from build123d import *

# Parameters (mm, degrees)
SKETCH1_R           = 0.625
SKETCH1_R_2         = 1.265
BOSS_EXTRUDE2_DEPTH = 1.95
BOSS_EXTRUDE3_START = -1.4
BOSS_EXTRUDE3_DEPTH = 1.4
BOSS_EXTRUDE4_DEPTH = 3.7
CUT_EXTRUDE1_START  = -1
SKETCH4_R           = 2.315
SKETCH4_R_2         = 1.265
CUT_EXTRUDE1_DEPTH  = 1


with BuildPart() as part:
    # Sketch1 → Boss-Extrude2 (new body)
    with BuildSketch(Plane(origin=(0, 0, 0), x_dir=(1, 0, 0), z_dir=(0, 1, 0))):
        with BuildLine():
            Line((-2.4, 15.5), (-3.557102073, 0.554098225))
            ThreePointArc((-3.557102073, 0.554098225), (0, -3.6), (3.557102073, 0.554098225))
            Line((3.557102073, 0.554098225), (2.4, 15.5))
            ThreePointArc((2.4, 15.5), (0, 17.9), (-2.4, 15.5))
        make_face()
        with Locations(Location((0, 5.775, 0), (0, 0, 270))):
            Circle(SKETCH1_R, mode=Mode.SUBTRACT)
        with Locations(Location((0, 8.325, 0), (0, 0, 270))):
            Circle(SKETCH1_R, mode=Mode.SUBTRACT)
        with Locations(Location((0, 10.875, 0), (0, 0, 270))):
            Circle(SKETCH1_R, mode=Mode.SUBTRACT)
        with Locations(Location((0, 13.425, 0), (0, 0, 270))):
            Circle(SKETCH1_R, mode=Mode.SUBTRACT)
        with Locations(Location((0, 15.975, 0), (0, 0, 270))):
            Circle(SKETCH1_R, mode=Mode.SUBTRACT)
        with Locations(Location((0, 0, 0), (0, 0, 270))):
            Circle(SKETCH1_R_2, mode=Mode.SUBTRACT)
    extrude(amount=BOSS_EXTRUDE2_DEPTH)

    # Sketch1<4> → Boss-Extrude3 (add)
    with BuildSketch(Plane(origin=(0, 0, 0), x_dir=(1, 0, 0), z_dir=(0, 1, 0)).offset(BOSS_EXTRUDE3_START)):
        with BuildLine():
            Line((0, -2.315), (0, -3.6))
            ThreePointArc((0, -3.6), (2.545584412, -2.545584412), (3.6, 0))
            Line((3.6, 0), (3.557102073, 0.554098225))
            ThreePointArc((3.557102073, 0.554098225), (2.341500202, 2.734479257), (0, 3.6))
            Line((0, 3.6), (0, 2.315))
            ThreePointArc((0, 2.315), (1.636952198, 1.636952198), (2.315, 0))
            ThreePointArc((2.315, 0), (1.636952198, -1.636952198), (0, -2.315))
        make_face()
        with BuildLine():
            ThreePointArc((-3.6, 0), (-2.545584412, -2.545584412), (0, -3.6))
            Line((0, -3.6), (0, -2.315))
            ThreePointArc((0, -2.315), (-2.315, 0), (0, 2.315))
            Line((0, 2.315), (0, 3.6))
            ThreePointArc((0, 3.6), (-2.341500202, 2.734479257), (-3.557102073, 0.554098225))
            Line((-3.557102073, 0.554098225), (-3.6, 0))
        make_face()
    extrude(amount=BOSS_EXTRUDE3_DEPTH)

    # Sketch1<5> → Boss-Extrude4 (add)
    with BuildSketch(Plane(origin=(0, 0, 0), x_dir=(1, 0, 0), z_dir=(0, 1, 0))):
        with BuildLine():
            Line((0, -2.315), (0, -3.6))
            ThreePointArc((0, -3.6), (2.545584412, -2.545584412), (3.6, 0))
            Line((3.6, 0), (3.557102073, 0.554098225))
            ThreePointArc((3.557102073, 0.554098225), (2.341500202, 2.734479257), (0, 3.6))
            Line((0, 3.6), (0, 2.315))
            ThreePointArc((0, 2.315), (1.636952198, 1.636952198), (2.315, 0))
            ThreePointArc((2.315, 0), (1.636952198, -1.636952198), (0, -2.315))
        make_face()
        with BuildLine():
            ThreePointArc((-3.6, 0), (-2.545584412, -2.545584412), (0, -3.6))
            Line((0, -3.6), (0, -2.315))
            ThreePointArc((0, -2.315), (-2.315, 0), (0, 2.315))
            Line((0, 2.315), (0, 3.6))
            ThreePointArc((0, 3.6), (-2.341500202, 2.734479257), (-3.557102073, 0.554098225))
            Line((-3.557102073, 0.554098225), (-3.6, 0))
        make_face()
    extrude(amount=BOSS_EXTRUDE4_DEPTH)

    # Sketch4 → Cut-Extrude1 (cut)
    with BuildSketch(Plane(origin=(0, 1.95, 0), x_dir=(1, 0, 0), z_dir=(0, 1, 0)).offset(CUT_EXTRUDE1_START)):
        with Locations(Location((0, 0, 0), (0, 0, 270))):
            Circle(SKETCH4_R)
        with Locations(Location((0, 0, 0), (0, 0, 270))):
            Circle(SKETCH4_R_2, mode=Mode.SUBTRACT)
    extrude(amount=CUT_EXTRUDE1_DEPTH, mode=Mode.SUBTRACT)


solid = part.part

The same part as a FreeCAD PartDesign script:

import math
import FreeCAD as App
import Part
import Sketcher

V = App.Vector

doc = App.newDocument("Part")
body = doc.addObject("PartDesign::Body", "Body")

sketch1 = doc.addObject("Sketcher::SketchObject", "Sketch")
body.addObject(sketch1)
sketch1.AttachmentSupport = (doc.XZ_Plane, [""])
sketch1.MapMode = "FlatFace"
sketch1.addGeometry(Part.LineSegment(V(-2.4, -15.5, 0), V(-3.6, -0.6, 0)), False)
sketch1.addGeometry(Part.ArcOfCircle(Part.Circle(V(0, 0, 0), V(0, 0, 1), 3.6), math.radians(-9), math.radians(189)), False)
sketch1.addGeometry(Part.LineSegment(V(3.6, -0.6, 0), V(2.4, -15.5, 0)), False)
sketch1.addGeometry(Part.ArcOfCircle(Part.Circle(V(0, -15.5, 0), V(0, 0, 1), 2.4), math.radians(180), math.radians(360)), False)
sketch1.addGeometry(Part.Circle(V(0, 0, 0), V(0, 0, 1), 1.3), False)
sketch1.addGeometry(Part.Circle(V(0, -5.8, 0), V(0, 0, 1), 0.6), False)
sketch1.addGeometry(Part.Circle(V(0, -8.3, 0), V(0, 0, 1), 0.6), False)
sketch1.addGeometry(Part.Circle(V(0, -10.9, 0), V(0, 0, 1), 0.6), False)
sketch1.addGeometry(Part.Circle(V(0, -13.4, 0), V(0, 0, 1), 0.6), False)
sketch1.addGeometry(Part.Circle(V(0, -16, 0), V(0, 0, 1), 0.6), False)
sketch1.addConstraint(Sketcher.Constraint("Coincident", 0, 2, 1, 2))
sketch1.addConstraint(Sketcher.Constraint("Coincident", 1, 1, 2, 1))
sketch1.addConstraint(Sketcher.Constraint("Coincident", 2, 2, 3, 2))
sketch1.addConstraint(Sketcher.Constraint("Coincident", 3, 1, 0, 1))
sketch1.addConstraint(Sketcher.Constraint("Coincident", 1, 3, -1, 1))
sketch1.addConstraint(Sketcher.Constraint("Coincident", 4, 3, -1, 1))
sketch1.addConstraint(Sketcher.Constraint("Equal", 5, 6))
sketch1.addConstraint(Sketcher.Constraint("Equal", 6, 7))
sketch1.addConstraint(Sketcher.Constraint("Equal", 7, 8))
sketch1.addConstraint(Sketcher.Constraint("Equal", 8, 9))
sketch1.addConstraint(Sketcher.Constraint("Symmetric", 2, 2, 3, 1, -2))
sketch1.addConstraint(Sketcher.Constraint("PointOnObject", 5, 3, -2))
sketch1.addConstraint(Sketcher.Constraint("PointOnObject", 6, 3, -2))
sketch1.addConstraint(Sketcher.Constraint("PointOnObject", 7, 3, -2))
sketch1.addConstraint(Sketcher.Constraint("PointOnObject", 8, 3, -2))
sketch1.addConstraint(Sketcher.Constraint("PointOnObject", 9, 3, -2))
sketch1.addConstraint(Sketcher.Constraint("Horizontal", 0, 2, 1, 1))
sketch1.addConstraint(Sketcher.Constraint("Horizontal", 3, 3, 2, 2))
sketch1.addConstraint(Sketcher.Constraint("Radius", 1, 3.6))
sketch1.addConstraint(Sketcher.Constraint("Radius", 3, 2.4))
sketch1.addConstraint(Sketcher.Constraint("Diameter", 4, 2.53))
sketch1.addConstraint(Sketcher.Constraint("Diameter", 5, 1.25))
sketch1.addConstraint(Sketcher.Constraint("DistanceY", 3, 3, -1, 1, 15.5))
sketch1.addConstraint(Sketcher.Constraint("DistanceY", 7, 3, 5, 3, 5.1))
sketch1.addConstraint(Sketcher.Constraint("DistanceY", 8, 3, 6, 3, 5.1))
sketch1.addConstraint(Sketcher.Constraint("DistanceY", 9, 3, 7, 3, 5.1))
sketch1.addConstraint(Sketcher.Constraint("DistanceY", 6, 3, 5, 3, 2.55))
sketch1.addConstraint(Sketcher.Constraint("DistanceY", 5, 3, -1, 1, 5.775))
sketch1.addConstraint(Sketcher.Constraint("DistanceY", 0, 2, -1, 1, 0.554098))
pad1 = doc.addObject("PartDesign::Pad", "Pad")
body.addObject(pad1)
pad1.Profile = sketch1
pad1.Length = 1.95
pad1.Reversed = True

sketch2 = doc.addObject("Sketcher::SketchObject", "Sketch001")
body.addObject(sketch2)
sketch2.AttachmentSupport = (doc.XZ_Plane, [""])
sketch2.MapMode = "FlatFace"
sketch2.AttachmentOffset = App.Placement(V(0, 0, 1.4), App.Rotation())
sketch2.addGeometry(Part.ArcOfCircle(Part.Circle(V(0, 0, 0), V(0, 0, 1), 3.6), math.radians(0), math.radians(90)), False)
sketch2.addGeometry(Part.LineSegment(V(3.6, 0, 0), V(3.6, -0.6, 0)), False)
sketch2.addGeometry(Part.ArcOfCircle(Part.Circle(V(0, 0, 0), V(0, 0, 1), 3.6), math.radians(-90), math.radians(-9)), False)
sketch2.addGeometry(Part.ArcOfCircle(Part.Circle(V(0, 0, 0), V(0, 0, 1), 3.6), math.radians(-171), math.radians(-90)), False)
sketch2.addGeometry(Part.LineSegment(V(-3.6, -0.6, 0), V(-3.6, 0, 0)), False)
sketch2.addGeometry(Part.ArcOfCircle(Part.Circle(V(0, 0, 0), V(0, 0, 1), 3.6), math.radians(90), math.radians(180)), False)
sketch2.addGeometry(Part.ArcOfCircle(Part.Circle(V(0, 0, 0), V(0, 0, 1), 2.3), math.radians(-90), math.radians(0)), False)
sketch2.addGeometry(Part.ArcOfCircle(Part.Circle(V(0, 0, 0), V(0, 0, 1), 2.3), math.radians(0), math.radians(90)), False)
sketch2.addGeometry(Part.ArcOfCircle(Part.Circle(V(0, 0, 0), V(0, 0, 1), 2.3), math.radians(90), math.radians(270)), False)
sketch2.addConstraint(Sketcher.Constraint("Coincident", 0, 1, 1, 1))
sketch2.addConstraint(Sketcher.Constraint("Coincident", 1, 2, 2, 2))
sketch2.addConstraint(Sketcher.Constraint("Tangent", 2, 1, 3, 2))
sketch2.addConstraint(Sketcher.Constraint("Coincident", 3, 1, 4, 1))
sketch2.addConstraint(Sketcher.Constraint("Coincident", 4, 2, 5, 2))
sketch2.addConstraint(Sketcher.Constraint("Tangent", 5, 1, 0, 2))
sketch2.addConstraint(Sketcher.Constraint("Tangent", 6, 2, 7, 1))
sketch2.addConstraint(Sketcher.Constraint("Tangent", 7, 2, 8, 1))
sketch2.addConstraint(Sketcher.Constraint("Tangent", 8, 2, 6, 1))
sketch2.addConstraint(Sketcher.Constraint("Coincident", 0, 3, -1, 1))
sketch2.addConstraint(Sketcher.Constraint("Coincident", 2, 3, -1, 1))
sketch2.addConstraint(Sketcher.Constraint("Coincident", 6, 3, -1, 1))
sketch2.addConstraint(Sketcher.Constraint("Equal", 0, 2))
sketch2.addConstraint(Sketcher.Constraint("Equal", 2, 3))
sketch2.addConstraint(Sketcher.Constraint("Equal", 3, 5))
sketch2.addConstraint(Sketcher.Constraint("PointOnObject", 0, 1, -1))
sketch2.addConstraint(Sketcher.Constraint("PointOnObject", 2, 1, -2))
sketch2.addConstraint(Sketcher.Constraint("PointOnObject", 4, 2, -1))
sketch2.addConstraint(Sketcher.Constraint("PointOnObject", 5, 1, -2))
sketch2.addConstraint(Sketcher.Constraint("PointOnObject", 6, 2, -1))
sketch2.addConstraint(Sketcher.Constraint("PointOnObject", 7, 2, -2))
sketch2.addConstraint(Sketcher.Constraint("PointOnObject", 8, 2, -2))
sketch2.addConstraint(Sketcher.Constraint("Horizontal", 1, 2, 3, 1))
sketch2.addConstraint(Sketcher.Constraint("Radius", 0, 3.6))
sketch2.addConstraint(Sketcher.Constraint("Radius", 6, 2.315))
sketch2.addConstraint(Sketcher.Constraint("DistanceY", 1, 2, -1, 1, 0.554098))
pad2 = doc.addObject("PartDesign::Pad", "Pad001")
body.addObject(pad2)
pad2.Profile = sketch2
pad2.Length = 1.4
pad2.Reversed = True

sketch3 = doc.addObject("Sketcher::SketchObject", "Sketch002")
body.addObject(sketch3)
sketch3.AttachmentSupport = (doc.XZ_Plane, [""])
sketch3.MapMode = "FlatFace"
sketch3.addGeometry(Part.ArcOfCircle(Part.Circle(V(0, 0, 0), V(0, 0, 1), 3.6), math.radians(0), math.radians(90)), False)
sketch3.addGeometry(Part.LineSegment(V(3.6, 0, 0), V(3.6, -0.6, 0)), False)
sketch3.addGeometry(Part.ArcOfCircle(Part.Circle(V(0, 0, 0), V(0, 0, 1), 3.6), math.radians(-90), math.radians(-9)), False)
sketch3.addGeometry(Part.ArcOfCircle(Part.Circle(V(0, 0, 0), V(0, 0, 1), 3.6), math.radians(-171), math.radians(-90)), False)
sketch3.addGeometry(Part.LineSegment(V(-3.6, -0.6, 0), V(-3.6, 0, 0)), False)
sketch3.addGeometry(Part.ArcOfCircle(Part.Circle(V(0, 0, 0), V(0, 0, 1), 3.6), math.radians(90), math.radians(180)), False)
sketch3.addGeometry(Part.ArcOfCircle(Part.Circle(V(0, 0, 0), V(0, 0, 1), 2.3), math.radians(-90), math.radians(0)), False)
sketch3.addGeometry(Part.ArcOfCircle(Part.Circle(V(0, 0, 0), V(0, 0, 1), 2.3), math.radians(0), math.radians(90)), False)
sketch3.addGeometry(Part.ArcOfCircle(Part.Circle(V(0, 0, 0), V(0, 0, 1), 2.3), math.radians(90), math.radians(270)), False)
sketch3.addConstraint(Sketcher.Constraint("Coincident", 0, 1, 1, 1))
sketch3.addConstraint(Sketcher.Constraint("Coincident", 1, 2, 2, 2))
sketch3.addConstraint(Sketcher.Constraint("Tangent", 2, 1, 3, 2))
sketch3.addConstraint(Sketcher.Constraint("Coincident", 3, 1, 4, 1))
sketch3.addConstraint(Sketcher.Constraint("Coincident", 4, 2, 5, 2))
sketch3.addConstraint(Sketcher.Constraint("Tangent", 5, 1, 0, 2))
sketch3.addConstraint(Sketcher.Constraint("Tangent", 6, 2, 7, 1))
sketch3.addConstraint(Sketcher.Constraint("Tangent", 7, 2, 8, 1))
sketch3.addConstraint(Sketcher.Constraint("Tangent", 8, 2, 6, 1))
sketch3.addConstraint(Sketcher.Constraint("Coincident", 0, 3, -1, 1))
sketch3.addConstraint(Sketcher.Constraint("Coincident", 2, 3, -1, 1))
sketch3.addConstraint(Sketcher.Constraint("Coincident", 6, 3, -1, 1))
sketch3.addConstraint(Sketcher.Constraint("Equal", 0, 2))
sketch3.addConstraint(Sketcher.Constraint("Equal", 2, 3))
sketch3.addConstraint(Sketcher.Constraint("Equal", 3, 5))
sketch3.addConstraint(Sketcher.Constraint("PointOnObject", 0, 1, -1))
sketch3.addConstraint(Sketcher.Constraint("PointOnObject", 2, 1, -2))
sketch3.addConstraint(Sketcher.Constraint("PointOnObject", 4, 2, -1))
sketch3.addConstraint(Sketcher.Constraint("PointOnObject", 5, 1, -2))
sketch3.addConstraint(Sketcher.Constraint("PointOnObject", 6, 2, -1))
sketch3.addConstraint(Sketcher.Constraint("PointOnObject", 7, 2, -2))
sketch3.addConstraint(Sketcher.Constraint("PointOnObject", 8, 2, -2))
sketch3.addConstraint(Sketcher.Constraint("Horizontal", 1, 2, 3, 1))
sketch3.addConstraint(Sketcher.Constraint("Radius", 0, 3.6))
sketch3.addConstraint(Sketcher.Constraint("Radius", 6, 2.315))
sketch3.addConstraint(Sketcher.Constraint("DistanceY", 1, 2, -1, 1, 0.554098))
pad3 = doc.addObject("PartDesign::Pad", "Pad002")
body.addObject(pad3)
pad3.Profile = sketch3
pad3.Length = 3.7
pad3.Reversed = True

sketch4 = doc.addObject("Sketcher::SketchObject", "Sketch003")
body.addObject(sketch4)
sketch4.AttachmentSupport = (doc.XZ_Plane, [""])
sketch4.MapMode = "FlatFace"
sketch4.AttachmentOffset = App.Placement(V(0, 0, -0.95), App.Rotation())
sketch4.addGeometry(Part.Circle(V(0, 0, 0), V(0, 0, 1), 2.3), False)
sketch4.addGeometry(Part.Circle(V(0, 0, 0), V(0, 0, 1), 1.3), False)
sketch4.addConstraint(Sketcher.Constraint("Coincident", 0, 3, -1, 1))
sketch4.addConstraint(Sketcher.Constraint("Coincident", 1, 3, -1, 1))
sketch4.addConstraint(Sketcher.Constraint("Diameter", 0, 4.63))
sketch4.addConstraint(Sketcher.Constraint("Diameter", 1, 2.53))
pocket1 = doc.addObject("PartDesign::Pocket", "Pocket")
body.addObject(pocket1)
pocket1.Profile = sketch4
pocket1.Length = 1

doc.recompute()
